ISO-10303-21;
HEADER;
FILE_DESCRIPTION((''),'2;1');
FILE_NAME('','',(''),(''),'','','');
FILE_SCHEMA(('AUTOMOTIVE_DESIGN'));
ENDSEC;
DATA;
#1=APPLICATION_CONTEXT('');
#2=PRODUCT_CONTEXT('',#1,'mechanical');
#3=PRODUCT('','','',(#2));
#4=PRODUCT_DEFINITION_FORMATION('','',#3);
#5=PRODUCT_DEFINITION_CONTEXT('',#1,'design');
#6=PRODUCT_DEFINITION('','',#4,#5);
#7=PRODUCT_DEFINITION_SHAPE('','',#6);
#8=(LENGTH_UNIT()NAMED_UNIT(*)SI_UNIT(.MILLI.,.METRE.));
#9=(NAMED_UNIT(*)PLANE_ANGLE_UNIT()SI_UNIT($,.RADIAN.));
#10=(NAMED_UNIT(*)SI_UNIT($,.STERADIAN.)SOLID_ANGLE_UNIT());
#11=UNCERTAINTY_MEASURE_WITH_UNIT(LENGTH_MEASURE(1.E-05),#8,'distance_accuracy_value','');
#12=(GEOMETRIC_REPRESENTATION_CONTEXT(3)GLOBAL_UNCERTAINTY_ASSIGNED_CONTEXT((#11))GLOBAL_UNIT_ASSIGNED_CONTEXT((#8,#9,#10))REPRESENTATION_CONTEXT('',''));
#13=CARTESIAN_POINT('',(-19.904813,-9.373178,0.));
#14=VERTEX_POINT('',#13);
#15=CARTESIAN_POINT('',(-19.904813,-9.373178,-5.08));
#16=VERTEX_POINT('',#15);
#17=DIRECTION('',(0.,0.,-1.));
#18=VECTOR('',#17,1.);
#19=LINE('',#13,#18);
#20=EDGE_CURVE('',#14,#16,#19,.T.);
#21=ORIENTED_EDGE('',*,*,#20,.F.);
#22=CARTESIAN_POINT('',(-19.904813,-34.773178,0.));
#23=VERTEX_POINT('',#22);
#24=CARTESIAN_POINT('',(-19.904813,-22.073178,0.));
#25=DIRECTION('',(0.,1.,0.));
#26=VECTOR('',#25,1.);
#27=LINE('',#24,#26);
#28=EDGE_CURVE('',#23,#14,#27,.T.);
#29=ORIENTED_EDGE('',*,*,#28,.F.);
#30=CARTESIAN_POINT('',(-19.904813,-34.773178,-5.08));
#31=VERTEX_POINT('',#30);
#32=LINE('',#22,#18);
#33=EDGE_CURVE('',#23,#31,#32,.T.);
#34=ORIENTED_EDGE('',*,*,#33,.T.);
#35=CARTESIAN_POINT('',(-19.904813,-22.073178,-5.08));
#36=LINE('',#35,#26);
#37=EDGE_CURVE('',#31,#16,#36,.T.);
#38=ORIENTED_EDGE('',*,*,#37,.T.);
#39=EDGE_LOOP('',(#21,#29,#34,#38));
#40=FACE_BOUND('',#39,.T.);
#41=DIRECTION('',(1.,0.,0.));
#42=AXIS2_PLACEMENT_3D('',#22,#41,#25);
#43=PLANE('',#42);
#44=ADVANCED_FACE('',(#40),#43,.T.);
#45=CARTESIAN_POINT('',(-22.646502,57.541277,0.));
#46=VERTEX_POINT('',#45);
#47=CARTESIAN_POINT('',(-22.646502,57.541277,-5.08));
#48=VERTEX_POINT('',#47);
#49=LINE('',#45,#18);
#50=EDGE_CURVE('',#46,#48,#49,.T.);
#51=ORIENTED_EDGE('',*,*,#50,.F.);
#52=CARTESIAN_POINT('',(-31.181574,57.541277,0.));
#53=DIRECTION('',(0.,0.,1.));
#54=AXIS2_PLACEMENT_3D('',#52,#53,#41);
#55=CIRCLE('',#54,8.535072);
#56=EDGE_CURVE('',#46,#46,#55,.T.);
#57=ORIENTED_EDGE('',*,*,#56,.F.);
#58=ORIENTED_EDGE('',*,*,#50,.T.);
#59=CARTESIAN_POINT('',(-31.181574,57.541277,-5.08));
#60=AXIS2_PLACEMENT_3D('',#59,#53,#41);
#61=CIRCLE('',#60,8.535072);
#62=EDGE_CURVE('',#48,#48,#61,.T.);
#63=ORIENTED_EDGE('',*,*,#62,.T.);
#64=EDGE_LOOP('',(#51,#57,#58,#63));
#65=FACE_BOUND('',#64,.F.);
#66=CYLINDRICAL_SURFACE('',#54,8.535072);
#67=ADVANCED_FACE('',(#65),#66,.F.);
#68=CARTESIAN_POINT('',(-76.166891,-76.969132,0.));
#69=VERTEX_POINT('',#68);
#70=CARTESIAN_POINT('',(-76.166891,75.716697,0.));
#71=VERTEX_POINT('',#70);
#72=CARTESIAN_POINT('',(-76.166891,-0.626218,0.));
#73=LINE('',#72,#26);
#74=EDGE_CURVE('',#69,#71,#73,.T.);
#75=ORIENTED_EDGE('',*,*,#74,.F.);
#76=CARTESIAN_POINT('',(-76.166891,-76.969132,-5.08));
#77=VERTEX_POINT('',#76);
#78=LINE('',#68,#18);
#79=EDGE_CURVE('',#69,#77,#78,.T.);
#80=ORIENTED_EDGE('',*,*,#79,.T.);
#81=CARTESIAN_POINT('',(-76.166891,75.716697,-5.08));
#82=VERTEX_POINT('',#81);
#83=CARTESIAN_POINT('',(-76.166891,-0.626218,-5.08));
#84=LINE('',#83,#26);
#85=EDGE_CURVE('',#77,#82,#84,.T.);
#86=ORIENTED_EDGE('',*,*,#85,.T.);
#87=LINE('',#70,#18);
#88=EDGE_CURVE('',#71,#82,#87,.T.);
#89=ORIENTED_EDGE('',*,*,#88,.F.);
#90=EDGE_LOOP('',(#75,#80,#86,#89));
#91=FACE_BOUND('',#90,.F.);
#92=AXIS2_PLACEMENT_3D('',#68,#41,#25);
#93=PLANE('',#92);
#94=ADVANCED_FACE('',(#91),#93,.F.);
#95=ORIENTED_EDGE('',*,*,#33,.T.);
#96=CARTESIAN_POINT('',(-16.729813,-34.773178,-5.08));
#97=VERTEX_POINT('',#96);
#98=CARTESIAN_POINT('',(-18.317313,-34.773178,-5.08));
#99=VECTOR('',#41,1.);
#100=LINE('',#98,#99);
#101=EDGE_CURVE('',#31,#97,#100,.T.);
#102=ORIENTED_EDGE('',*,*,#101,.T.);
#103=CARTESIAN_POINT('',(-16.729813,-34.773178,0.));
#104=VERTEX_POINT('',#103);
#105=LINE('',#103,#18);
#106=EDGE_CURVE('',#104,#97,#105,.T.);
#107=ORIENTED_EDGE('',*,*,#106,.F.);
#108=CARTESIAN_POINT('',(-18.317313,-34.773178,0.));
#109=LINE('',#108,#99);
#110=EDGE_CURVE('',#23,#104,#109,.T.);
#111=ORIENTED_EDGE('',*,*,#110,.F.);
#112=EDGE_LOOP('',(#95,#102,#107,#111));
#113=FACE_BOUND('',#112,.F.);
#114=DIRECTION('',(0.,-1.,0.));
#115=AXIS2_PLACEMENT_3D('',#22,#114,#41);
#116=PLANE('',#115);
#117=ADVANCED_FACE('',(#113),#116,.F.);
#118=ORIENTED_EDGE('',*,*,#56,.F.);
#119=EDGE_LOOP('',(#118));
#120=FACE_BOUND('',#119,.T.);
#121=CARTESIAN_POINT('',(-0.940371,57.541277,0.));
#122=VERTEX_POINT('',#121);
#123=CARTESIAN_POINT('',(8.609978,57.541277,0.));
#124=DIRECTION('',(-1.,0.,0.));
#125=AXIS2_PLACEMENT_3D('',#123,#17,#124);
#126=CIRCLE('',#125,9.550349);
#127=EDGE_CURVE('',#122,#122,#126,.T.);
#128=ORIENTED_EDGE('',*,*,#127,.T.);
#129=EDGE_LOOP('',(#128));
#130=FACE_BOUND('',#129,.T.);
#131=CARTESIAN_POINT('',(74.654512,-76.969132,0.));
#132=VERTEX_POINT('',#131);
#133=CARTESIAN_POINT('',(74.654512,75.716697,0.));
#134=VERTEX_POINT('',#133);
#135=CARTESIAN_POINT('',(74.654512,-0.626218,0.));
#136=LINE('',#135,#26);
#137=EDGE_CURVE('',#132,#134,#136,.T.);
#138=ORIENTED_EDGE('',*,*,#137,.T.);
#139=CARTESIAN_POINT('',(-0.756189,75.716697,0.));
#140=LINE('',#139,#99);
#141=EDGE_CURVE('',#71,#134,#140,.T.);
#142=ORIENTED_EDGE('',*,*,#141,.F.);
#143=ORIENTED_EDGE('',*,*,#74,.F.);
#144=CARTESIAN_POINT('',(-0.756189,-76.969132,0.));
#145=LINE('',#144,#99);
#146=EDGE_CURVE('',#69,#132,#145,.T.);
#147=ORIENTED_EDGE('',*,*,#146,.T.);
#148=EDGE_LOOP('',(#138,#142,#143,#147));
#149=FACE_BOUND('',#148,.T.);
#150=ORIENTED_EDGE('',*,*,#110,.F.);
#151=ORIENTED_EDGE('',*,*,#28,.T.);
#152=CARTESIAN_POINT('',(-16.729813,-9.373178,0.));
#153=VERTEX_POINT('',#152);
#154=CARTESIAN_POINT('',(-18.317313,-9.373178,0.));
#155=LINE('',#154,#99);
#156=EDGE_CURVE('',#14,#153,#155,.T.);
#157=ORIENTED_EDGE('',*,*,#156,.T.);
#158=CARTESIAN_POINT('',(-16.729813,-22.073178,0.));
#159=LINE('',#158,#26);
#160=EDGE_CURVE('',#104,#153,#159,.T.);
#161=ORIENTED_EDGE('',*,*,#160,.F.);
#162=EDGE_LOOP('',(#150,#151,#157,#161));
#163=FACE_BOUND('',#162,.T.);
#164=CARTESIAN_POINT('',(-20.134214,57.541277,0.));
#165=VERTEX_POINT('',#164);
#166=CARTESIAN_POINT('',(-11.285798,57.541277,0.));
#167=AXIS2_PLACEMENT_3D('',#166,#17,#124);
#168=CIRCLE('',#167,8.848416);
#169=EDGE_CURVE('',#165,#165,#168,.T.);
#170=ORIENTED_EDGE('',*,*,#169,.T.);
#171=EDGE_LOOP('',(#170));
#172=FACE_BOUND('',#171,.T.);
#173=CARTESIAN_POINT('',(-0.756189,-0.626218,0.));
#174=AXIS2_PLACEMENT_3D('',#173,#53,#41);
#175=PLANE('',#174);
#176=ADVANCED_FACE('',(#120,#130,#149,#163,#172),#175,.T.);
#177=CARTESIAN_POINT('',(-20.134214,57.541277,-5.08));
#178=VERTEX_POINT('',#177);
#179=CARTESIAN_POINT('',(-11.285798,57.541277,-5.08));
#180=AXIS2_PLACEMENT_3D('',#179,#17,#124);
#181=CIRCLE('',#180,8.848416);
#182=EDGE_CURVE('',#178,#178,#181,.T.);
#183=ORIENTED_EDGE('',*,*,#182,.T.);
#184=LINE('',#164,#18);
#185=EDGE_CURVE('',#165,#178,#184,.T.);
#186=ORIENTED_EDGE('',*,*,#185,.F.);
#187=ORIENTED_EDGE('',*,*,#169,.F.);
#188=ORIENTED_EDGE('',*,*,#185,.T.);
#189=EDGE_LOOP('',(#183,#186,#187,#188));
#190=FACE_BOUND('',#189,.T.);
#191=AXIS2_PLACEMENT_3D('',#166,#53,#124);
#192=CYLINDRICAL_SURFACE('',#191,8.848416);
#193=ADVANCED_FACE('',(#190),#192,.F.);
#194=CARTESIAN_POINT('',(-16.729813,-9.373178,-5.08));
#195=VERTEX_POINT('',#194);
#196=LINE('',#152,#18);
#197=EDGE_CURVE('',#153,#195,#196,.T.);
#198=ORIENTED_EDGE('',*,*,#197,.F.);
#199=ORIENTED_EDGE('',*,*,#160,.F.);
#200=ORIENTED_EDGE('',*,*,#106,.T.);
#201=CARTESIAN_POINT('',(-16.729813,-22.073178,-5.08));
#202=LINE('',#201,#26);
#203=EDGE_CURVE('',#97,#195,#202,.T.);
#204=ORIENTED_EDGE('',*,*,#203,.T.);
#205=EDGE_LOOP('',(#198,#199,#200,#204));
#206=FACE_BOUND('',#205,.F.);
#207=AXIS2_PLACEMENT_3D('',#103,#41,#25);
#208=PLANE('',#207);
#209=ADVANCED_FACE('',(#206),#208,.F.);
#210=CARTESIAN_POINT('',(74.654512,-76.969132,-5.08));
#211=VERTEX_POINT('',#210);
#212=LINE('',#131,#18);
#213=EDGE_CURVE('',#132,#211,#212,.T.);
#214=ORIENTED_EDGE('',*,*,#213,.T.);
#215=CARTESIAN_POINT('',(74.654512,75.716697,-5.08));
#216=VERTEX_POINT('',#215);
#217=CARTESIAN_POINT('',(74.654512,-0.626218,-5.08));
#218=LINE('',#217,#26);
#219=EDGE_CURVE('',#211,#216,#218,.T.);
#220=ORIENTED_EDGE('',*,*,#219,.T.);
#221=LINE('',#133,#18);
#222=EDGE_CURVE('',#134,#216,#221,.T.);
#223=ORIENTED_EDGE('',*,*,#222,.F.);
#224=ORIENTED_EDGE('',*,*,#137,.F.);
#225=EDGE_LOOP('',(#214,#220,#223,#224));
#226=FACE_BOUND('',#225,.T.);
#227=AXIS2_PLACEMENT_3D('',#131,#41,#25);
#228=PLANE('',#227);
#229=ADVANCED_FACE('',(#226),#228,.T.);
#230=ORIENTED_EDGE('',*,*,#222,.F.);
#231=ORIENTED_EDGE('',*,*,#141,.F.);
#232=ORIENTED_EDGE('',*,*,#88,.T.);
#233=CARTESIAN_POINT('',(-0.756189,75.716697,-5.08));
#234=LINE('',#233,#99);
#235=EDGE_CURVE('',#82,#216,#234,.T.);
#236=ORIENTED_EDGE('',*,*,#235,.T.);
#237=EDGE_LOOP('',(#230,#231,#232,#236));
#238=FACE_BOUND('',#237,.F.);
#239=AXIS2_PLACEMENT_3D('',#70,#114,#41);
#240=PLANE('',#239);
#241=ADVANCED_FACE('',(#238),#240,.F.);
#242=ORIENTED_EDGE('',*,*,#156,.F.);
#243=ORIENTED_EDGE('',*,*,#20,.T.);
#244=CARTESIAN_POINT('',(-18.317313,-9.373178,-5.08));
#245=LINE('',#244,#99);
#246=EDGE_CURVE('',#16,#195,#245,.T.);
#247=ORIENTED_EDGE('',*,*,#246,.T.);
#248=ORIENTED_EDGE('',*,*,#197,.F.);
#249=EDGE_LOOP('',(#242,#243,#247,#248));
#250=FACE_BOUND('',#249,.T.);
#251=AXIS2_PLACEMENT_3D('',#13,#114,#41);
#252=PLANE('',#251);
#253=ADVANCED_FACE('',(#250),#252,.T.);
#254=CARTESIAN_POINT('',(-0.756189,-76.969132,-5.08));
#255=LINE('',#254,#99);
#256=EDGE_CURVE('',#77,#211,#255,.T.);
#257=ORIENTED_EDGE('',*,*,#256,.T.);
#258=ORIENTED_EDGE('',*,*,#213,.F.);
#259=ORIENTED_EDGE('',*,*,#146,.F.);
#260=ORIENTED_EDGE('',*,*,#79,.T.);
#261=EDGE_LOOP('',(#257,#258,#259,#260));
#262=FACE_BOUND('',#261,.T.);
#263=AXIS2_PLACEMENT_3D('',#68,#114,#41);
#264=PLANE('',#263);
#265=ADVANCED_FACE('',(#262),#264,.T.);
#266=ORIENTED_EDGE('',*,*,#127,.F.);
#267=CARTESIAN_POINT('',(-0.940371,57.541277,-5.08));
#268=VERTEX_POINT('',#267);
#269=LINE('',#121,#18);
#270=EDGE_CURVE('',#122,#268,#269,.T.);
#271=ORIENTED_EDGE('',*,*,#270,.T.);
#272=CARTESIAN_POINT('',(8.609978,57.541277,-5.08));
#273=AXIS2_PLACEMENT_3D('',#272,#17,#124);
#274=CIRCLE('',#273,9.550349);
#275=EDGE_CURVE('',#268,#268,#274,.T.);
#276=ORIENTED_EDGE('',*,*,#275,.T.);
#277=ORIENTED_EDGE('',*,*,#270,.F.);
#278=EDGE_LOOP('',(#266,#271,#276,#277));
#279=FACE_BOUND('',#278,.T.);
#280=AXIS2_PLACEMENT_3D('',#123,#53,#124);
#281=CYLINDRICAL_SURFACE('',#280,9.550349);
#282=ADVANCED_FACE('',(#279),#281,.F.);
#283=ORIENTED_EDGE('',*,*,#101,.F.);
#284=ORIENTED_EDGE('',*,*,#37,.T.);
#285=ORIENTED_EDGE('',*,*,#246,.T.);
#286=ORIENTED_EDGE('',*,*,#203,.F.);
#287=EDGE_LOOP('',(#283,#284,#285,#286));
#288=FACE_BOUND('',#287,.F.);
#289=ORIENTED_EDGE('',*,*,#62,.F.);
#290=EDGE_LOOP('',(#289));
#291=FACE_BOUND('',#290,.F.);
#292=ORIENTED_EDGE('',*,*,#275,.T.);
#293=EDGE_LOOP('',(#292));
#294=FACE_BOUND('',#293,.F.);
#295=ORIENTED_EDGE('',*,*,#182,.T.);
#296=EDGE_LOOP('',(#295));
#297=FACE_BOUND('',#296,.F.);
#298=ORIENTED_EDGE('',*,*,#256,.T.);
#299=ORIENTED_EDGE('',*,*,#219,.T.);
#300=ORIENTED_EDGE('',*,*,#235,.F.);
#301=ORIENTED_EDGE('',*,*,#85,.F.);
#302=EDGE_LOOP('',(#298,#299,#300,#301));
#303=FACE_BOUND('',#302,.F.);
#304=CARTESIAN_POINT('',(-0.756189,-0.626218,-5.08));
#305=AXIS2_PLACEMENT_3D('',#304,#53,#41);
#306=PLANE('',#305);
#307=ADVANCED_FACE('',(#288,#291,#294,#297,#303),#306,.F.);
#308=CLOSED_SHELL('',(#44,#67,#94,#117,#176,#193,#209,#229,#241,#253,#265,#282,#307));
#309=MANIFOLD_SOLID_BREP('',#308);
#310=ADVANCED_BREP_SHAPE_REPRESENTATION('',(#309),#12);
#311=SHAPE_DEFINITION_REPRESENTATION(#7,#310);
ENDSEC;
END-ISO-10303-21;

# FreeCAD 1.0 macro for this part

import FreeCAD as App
import Part
import Sketcher
from FreeCAD import Vector
Q = App.Units.Quantity


def add_polygon(sketch, points):
    """Adds a closed chain of lines whose ends are joined by coincident constraints."""
    first, n = sketch.GeometryCount, len(points)
    for a, b in zip(points, points[1:] + points[:1]):
        sketch.addGeometry(Part.LineSegment(App.Vector(*a, 0), App.Vector(*b, 0)), False)
    for i in range(n):
        sketch.addConstraint(Sketcher.Constraint("Coincident", first + i, 2, first + (i + 1) % n, 1))

doc = App.newDocument("Part")
body = doc.addObject("PartDesign::Body", "Body")

# Sketch on XY plane
sketch1 = doc.addObject("Sketcher::SketchObject", "Sketch")
body.addObject(sketch1)
sketch1.AttachmentSupport = (doc.XY_Plane, [""])
sketch1.MapMode = "FlatFace"
add_polygon(sketch1, [(-76.2, 75.7), (-76.2, -77), (74.7, -77), (74.7, 75.7)])  # lines 0-3
add_polygon(sketch1, [(-16.7, -34.8), (-19.9, -34.8), (-19.9, -9.4), (-16.7, -9.4)])  # lines 4-7
sketch1.addGeometry(Part.Circle(Vector(-31.2, 57.5, 0), Vector(0, 0, 1), 8.5), False)  # 8
sketch1.addGeometry(Part.Circle(Vector(-11.3, 57.5, 0), Vector(0, 0, 1), 8.8), False)  # 9
sketch1.addGeometry(Part.Circle(Vector(8.6, 57.5, 0), Vector(0, 0, 1), 9.6), False)  # 10
sketch1.addConstraint(Sketcher.Constraint("Vertical", 0))
sketch1.addConstraint(Sketcher.Constraint("Horizontal", 1))
sketch1.addConstraint(Sketcher.Constraint("Vertical", 2))
sketch1.addConstraint(Sketcher.Constraint("Horizontal", 3))
sketch1.addConstraint(Sketcher.Constraint("Horizontal", 4))
sketch1.addConstraint(Sketcher.Constraint("Vertical", 5))
sketch1.addConstraint(Sketcher.Constraint("Horizontal", 6))
sketch1.addConstraint(Sketcher.Constraint("Vertical", 7))
sketch1.addConstraint(Sketcher.Constraint("Horizontal", 8, 3, 9, 3))
sketch1.addConstraint(Sketcher.Constraint("Horizontal", 9, 3, 10, 3))
sketch1.addConstraint(Sketcher.Constraint("DistanceY", 5, 1, 5, 2, Q("1 in")))
sketch1.addConstraint(Sketcher.Constraint("DistanceX", 4, 2, 4, 1, Q("0.125 in")))
sketch1.addConstraint(Sketcher.Constraint("Diameter", 9, Q("17.696831 mm")))
sketch1.addConstraint(Sketcher.Constraint("Diameter", 8, Q("17.070144 mm")))
sketch1.addConstraint(Sketcher.Constraint("Diameter", 10, Q("19.100698 mm")))
sketch1.addConstraint(Sketcher.Constraint("DistanceY", 0, 2, 0, 1, Q("152.685829 mm")))
sketch1.addConstraint(Sketcher.Constraint("DistanceX", 9, 3, -1, 1, Q("11.285798 mm")))
sketch1.addConstraint(Sketcher.Constraint("DistanceX", 1, 1, 1, 2, Q("150.821403 mm")))
sketch1.addConstraint(Sketcher.Constraint("DistanceX", 0, 2, -1, 1, Q("76.166891 mm")))
sketch1.addConstraint(Sketcher.Constraint("DistanceY", 0, 2, -1, 1, Q("76.969132 mm")))
sketch1.addConstraint(Sketcher.Constraint("DistanceY", 4, 2, -1, 1, Q("34.773178 mm")))
sketch1.addConstraint(Sketcher.Constraint("DistanceX", 8, 3, 10, 3, Q("39.791551 mm")))
sketch1.addConstraint(Sketcher.Constraint("DistanceY", 0, 2, 8, 3, Q("134.510409 mm")))
sketch1.addConstraint(Sketcher.Constraint("DistanceX", 0, 2, 10, 3, Q("84.776868 mm")))
sketch1.addConstraint(Sketcher.Constraint("DistanceX", 8, 3, 4, 2, Q("11.276761 mm")))
pad1 = doc.addObject("PartDesign::Pad", "Pad")
body.addObject(pad1)
pad1.Profile = sketch1
pad1.Length = Q("0.2 in")
pad1.Reversed = True

doc.recompute()
